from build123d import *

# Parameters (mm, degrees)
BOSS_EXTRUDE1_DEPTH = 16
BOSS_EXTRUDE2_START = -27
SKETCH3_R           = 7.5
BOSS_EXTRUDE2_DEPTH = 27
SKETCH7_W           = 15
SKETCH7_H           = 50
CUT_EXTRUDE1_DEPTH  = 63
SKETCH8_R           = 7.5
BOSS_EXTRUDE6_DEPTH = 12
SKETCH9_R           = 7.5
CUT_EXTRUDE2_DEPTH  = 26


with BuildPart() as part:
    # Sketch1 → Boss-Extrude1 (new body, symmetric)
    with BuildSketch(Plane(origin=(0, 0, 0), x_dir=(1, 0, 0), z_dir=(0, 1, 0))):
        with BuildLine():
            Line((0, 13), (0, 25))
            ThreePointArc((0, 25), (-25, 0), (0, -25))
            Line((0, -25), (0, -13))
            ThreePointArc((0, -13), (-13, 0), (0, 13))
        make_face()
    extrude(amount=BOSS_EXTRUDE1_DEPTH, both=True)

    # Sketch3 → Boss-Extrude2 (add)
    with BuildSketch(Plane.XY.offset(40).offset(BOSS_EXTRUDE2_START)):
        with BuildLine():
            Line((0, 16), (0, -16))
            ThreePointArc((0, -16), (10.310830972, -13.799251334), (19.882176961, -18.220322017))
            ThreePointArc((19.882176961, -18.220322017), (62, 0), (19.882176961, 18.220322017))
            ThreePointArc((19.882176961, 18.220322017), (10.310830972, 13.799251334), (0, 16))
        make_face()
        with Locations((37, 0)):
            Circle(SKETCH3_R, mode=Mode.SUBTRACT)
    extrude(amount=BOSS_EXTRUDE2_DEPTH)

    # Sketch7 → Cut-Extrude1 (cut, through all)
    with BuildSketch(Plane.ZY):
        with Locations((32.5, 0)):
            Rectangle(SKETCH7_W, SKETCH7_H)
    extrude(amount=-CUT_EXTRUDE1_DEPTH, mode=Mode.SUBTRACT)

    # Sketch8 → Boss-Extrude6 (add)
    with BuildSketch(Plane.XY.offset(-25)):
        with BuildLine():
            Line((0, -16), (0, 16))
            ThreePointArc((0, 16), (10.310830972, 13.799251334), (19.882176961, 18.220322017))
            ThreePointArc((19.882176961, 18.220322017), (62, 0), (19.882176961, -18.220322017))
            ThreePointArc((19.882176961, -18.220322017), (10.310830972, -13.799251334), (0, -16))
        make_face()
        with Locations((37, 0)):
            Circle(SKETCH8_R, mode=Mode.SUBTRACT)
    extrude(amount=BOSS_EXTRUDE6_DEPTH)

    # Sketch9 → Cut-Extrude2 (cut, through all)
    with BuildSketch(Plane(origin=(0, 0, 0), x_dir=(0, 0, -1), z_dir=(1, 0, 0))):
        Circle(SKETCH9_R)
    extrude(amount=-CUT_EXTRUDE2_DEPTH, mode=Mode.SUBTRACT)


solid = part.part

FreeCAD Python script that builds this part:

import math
import FreeCAD as App
import Part
import Sketcher
from FreeCAD import Vector
Q = App.Units.Quantity

doc = App.newDocument("Part")
params = doc.addObject("Spreadsheet::Sheet", "Params")
for row, (alias, value) in enumerate([
    ("sketch1_radius", "25 mm"),
    ("sketch1_radius2", "13 mm"),
    ("pad1_length", "32 mm"),
    ("sketch2_diameter", "15 mm"),
    ("sketch2_radius", "25 mm"),
    ("sketch2_height", "32 mm"),
    ("pad2_length", "27 mm"),
    ("sketch3_width", "50 mm"),
    ("sketch3_height", "15 mm"),
    ("sketch4_diameter", "15 mm"),
    ("sketch4_radius", "25 mm"),
    ("sketch4_height", "32 mm"),
    ("pad3_length", "12 mm"),
    ("sketch5_diameter", "15 mm"),
], start=1):
    params.set(f"A{row}", alias)
    params.set(f"B{row}", "=" + value)
    params.setAlias(f"B{row}", alias)

body = doc.addObject("PartDesign::Body", "Body")

sketch1 = body.newObject("Sketcher::SketchObject", "Sketch")
sketch1.AttachmentSupport = (doc.getObject("XZ_Plane"), [""])
sketch1.MapMode = "FlatFace"
sketch1.addGeometry([
    Part.LineSegment(Vector(0, -13, 0), Vector(0, -25, 0)),
    Part.ArcOfCircle(Part.Circle(Vector(0, 0, 0), Vector(0, 0, 1), 25), math.radians(90), math.radians(270)),
    Part.LineSegment(Vector(0, 25, 0), Vector(0, 13, 0)),
    Part.ArcOfCircle(Part.Circle(Vector(0, 0, 0), Vector(0, 0, 1), 13), math.radians(90), math.radians(270)),
], False)
sketch1.addConstraint([
    Sketcher.Constraint("Coincident", 0, 2, 1, 2),
    Sketcher.Constraint("Coincident", 1, 1, 2, 1),
    Sketcher.Constraint("Coincident", 2, 2, 3, 1),
    Sketcher.Constraint("Coincident", 3, 2, 0, 1),
    Sketcher.Constraint("Vertical", 0),
    Sketcher.Constraint("Vertical", 2),
    Sketcher.Constraint("Coincident", 1, 3, -1, 1),
    Sketcher.Constraint("Coincident", 3, 3, -1, 1),
    Sketcher.Constraint("PointOnObject", 0, 2, -2),
    Sketcher.Constraint("PointOnObject", 1, 1, -2),
    Sketcher.Constraint("Radius", 1, Q("25 mm")),
    Sketcher.Constraint("Radius", 3, Q("13 mm")),
])
sketch1.setExpression("Constraints[10]", "Params.sketch1_radius")
sketch1.setExpression("Constraints[11]", "Params.sketch1_radius2")
pad1 = body.newObject("PartDesign::Pad", "Pad")
pad1.Profile = sketch1
pad1.setExpression("Length", "Params.pad1_length")
pad1.Midplane = True

sketch2 = body.newObject("Sketcher::SketchObject", "Sketch001")
sketch2.AttachmentSupport = (doc.getObject("XY_Plane"), [""])
sketch2.MapMode = "FlatFace"
sketch2.AttachmentOffset = App.Placement(Vector(0, 0, 13), App.Rotation())
sketch2.addGeometry([
    Part.LineSegment(Vector(0, 16, 0), Vector(0, -16, 0)),
    Part.ArcOfCircle(Part.Circle(Vector(8, -30, 0), Vector(0, 0, 1), 17), math.radians(47), math.radians(120)),
    Part.ArcOfCircle(Part.Circle(Vector(37, 0, 0), Vector(0, 0, 1), 25), math.radians(-133), math.radians(133)),
    Part.ArcOfCircle(Part.Circle(Vector(8, 30, 0), Vector(0, 0, 1), 17), math.radians(-120), math.radians(-47)),
    Part.Circle(Vector(37, 0, 0), Vector(0, 0, 1), 8),
], False)
sketch2.addConstraint([
    Sketcher.Constraint("Coincident", 0, 2, 1, 2),
    Sketcher.Constraint("Tangent", 1, 1, 2, 1),
    Sketcher.Constraint("Tangent", 2, 2, 3, 2),
    Sketcher.Constraint("Coincident", 3, 1, 0, 1),
    Sketcher.Constraint("Vertical", 0),
    Sketcher.Constraint("Coincident", 4, 3, 2, 3),
    Sketcher.Constraint("Equal", 1, 3),
    Sketcher.Constraint("Symmetric", 0, 2, 3, 1, -1, 1),
    Sketcher.Constraint("PointOnObject", 2, 3, -1),
    Sketcher.Constraint("Diameter", 4, Q("15 mm")),
    Sketcher.Constraint("Radius", 2, Q("25 mm")),
    Sketcher.Constraint("DistanceY", 0, 2, 0, 1, Q("32 mm")),
    Sketcher.Constraint("DistanceX", -1, 1, 2, 3, Q("37 mm")),
    Sketcher.Constraint("Radius", 1, Q("16.6827 mm")),
])
sketch2.setExpression("Constraints[9]", "Params.sketch2_diameter")
sketch2.setExpression("Constraints[10]", "Params.sketch2_radius")
sketch2.setExpression("Constraints[11]", "Params.sketch2_height")
pad2 = body.newObject("PartDesign::Pad", "Pad001")
pad2.Profile = sketch2
pad2.setExpression("Length", "Params.pad2_length")

sketch3 = body.newObject("Sketcher::SketchObject", "Sketch002")
sketch3.AttachmentSupport = (doc.getObject("YZ_Plane"), [""])
sketch3.MapMode = "FlatFace"
sketch3.addGeometry([
    Part.LineSegment(Vector(25, 25, 0), Vector(-25, 25, 0)),
    Part.LineSegment(Vector(-25, 25, 0), Vector(-25, 40, 0)),
    Part.LineSegment(Vector(-25, 40, 0), Vector(25, 40, 0)),
    Part.LineSegment(Vector(25, 40, 0), Vector(25, 25, 0)),
], False)
sketch3.addConstraint([
    Sketcher.Constraint("Coincident", 0, 2, 1, 1),
    Sketcher.Constraint("Coincident", 1, 2, 2, 1),
    Sketcher.Constraint("Coincident", 2, 2, 3, 1),
    Sketcher.Constraint("Coincident", 3, 2, 0, 1),
    Sketcher.Constraint("Horizontal", 0),
    Sketcher.Constraint("Vertical", 1),
    Sketcher.Constraint("Horizontal", 2),
    Sketcher.Constraint("Vertical", 3),
    Sketcher.Constraint("DistanceX", 0, 2, 0, 1, Q("50 mm")),
    Sketcher.Constraint("DistanceY", 1, 1, 1, 2, Q("15 mm")),
    Sketcher.Constraint("DistanceX", 0, 2, -1, 1, Q("25 mm")),
    Sketcher.Constraint("DistanceY", -1, 1, 0, 2, Q("25 mm")),
])
sketch3.setExpression("Constraints[8]", "Params.sketch3_width")
sketch3.setExpression("Constraints[9]", "Params.sketch3_height")
pocket1 = body.newObject("PartDesign::Pocket", "Pocket")
pocket1.Profile = sketch3
pocket1.Type = "ThroughAll"
pocket1.Reversed = True

sketch4 = body.newObject("Sketcher::SketchObject", "Sketch003")
sketch4.AttachmentSupport = (doc.getObject("XY_Plane"), [""])
sketch4.MapMode = "FlatFace"
sketch4.AttachmentOffset = App.Placement(Vector(0, 0, -25), App.Rotation())
sketch4.addGeometry([
    Part.LineSegment(Vector(0, 16, 0), Vector(0, -16, 0)),
    Part.ArcOfCircle(Part.Circle(Vector(8, -30, 0), Vector(0, 0, 1), 17), math.radians(47), math.radians(120)),
    Part.ArcOfCircle(Part.Circle(Vector(37, 0, 0), Vector(0, 0, 1), 25), math.radians(-133), math.radians(133)),
    Part.ArcOfCircle(Part.Circle(Vector(8, 30, 0), Vector(0, 0, 1), 17), math.radians(-120), math.radians(-47)),
    Part.Circle(Vector(37, 0, 0), Vector(0, 0, 1), 8),
], False)
sketch4.addConstraint([
    Sketcher.Constraint("Coincident", 0, 2, 1, 2),
    Sketcher.Constraint("Tangent", 1, 1, 2, 1),
    Sketcher.Constraint("Tangent", 2, 2, 3, 2),
    Sketcher.Constraint("Coincident", 3, 1, 0, 1),
    Sketcher.Constraint("Vertical", 0),
    Sketcher.Constraint("Coincident", 4, 3, 2, 3),
    Sketcher.Constraint("Equal", 1, 3),
    Sketcher.Constraint("Symmetric", 0, 2, 3, 1, -1, 1),
    Sketcher.Constraint("PointOnObject", 2, 3, -1),
    Sketcher.Constraint("Diameter", 4, Q("15 mm")),
    Sketcher.Constraint("Radius", 2, Q("25 mm")),
    Sketcher.Constraint("DistanceY", 0, 2, 0, 1, Q("32 mm")),
    Sketcher.Constraint("DistanceX", -1, 1, 2, 3, Q("37 mm")),
    Sketcher.Constraint("Radius", 1, Q("16.6827 mm")),
])
sketch4.setExpression("Constraints[9]", "Params.sketch4_diameter")
sketch4.setExpression("Constraints[10]", "Params.sketch4_radius")
sketch4.setExpression("Constraints[11]", "Params.sketch4_height")
pad3 = body.newObject("PartDesign::Pad", "Pad002")
pad3.Profile = sketch4
pad3.setExpression("Length", "Params.pad3_length")

sketch5 = body.newObject("Sketcher::SketchObject", "Sketch004")
sketch5.AttachmentSupport = (doc.getObject("YZ_Plane"), [""])
sketch5.MapMode = "FlatFace"
sketch5.addGeometry(Part.Circle(Vector(0, 0, 0), Vector(0, 0, 1), 8), False)
sketch5.addConstraint([
    Sketcher.Constraint("Coincident", 0, 3, -1, 1),
    Sketcher.Constraint("Diameter", 0, Q("15 mm")),
])
sketch5.setExpression("Constraints[1]", "Params.sketch5_diameter")
pocket2 = body.newObject("PartDesign::Pocket", "Pocket001")
pocket2.Profile = sketch5
pocket2.Type = "ThroughAll"

doc.recompute()
